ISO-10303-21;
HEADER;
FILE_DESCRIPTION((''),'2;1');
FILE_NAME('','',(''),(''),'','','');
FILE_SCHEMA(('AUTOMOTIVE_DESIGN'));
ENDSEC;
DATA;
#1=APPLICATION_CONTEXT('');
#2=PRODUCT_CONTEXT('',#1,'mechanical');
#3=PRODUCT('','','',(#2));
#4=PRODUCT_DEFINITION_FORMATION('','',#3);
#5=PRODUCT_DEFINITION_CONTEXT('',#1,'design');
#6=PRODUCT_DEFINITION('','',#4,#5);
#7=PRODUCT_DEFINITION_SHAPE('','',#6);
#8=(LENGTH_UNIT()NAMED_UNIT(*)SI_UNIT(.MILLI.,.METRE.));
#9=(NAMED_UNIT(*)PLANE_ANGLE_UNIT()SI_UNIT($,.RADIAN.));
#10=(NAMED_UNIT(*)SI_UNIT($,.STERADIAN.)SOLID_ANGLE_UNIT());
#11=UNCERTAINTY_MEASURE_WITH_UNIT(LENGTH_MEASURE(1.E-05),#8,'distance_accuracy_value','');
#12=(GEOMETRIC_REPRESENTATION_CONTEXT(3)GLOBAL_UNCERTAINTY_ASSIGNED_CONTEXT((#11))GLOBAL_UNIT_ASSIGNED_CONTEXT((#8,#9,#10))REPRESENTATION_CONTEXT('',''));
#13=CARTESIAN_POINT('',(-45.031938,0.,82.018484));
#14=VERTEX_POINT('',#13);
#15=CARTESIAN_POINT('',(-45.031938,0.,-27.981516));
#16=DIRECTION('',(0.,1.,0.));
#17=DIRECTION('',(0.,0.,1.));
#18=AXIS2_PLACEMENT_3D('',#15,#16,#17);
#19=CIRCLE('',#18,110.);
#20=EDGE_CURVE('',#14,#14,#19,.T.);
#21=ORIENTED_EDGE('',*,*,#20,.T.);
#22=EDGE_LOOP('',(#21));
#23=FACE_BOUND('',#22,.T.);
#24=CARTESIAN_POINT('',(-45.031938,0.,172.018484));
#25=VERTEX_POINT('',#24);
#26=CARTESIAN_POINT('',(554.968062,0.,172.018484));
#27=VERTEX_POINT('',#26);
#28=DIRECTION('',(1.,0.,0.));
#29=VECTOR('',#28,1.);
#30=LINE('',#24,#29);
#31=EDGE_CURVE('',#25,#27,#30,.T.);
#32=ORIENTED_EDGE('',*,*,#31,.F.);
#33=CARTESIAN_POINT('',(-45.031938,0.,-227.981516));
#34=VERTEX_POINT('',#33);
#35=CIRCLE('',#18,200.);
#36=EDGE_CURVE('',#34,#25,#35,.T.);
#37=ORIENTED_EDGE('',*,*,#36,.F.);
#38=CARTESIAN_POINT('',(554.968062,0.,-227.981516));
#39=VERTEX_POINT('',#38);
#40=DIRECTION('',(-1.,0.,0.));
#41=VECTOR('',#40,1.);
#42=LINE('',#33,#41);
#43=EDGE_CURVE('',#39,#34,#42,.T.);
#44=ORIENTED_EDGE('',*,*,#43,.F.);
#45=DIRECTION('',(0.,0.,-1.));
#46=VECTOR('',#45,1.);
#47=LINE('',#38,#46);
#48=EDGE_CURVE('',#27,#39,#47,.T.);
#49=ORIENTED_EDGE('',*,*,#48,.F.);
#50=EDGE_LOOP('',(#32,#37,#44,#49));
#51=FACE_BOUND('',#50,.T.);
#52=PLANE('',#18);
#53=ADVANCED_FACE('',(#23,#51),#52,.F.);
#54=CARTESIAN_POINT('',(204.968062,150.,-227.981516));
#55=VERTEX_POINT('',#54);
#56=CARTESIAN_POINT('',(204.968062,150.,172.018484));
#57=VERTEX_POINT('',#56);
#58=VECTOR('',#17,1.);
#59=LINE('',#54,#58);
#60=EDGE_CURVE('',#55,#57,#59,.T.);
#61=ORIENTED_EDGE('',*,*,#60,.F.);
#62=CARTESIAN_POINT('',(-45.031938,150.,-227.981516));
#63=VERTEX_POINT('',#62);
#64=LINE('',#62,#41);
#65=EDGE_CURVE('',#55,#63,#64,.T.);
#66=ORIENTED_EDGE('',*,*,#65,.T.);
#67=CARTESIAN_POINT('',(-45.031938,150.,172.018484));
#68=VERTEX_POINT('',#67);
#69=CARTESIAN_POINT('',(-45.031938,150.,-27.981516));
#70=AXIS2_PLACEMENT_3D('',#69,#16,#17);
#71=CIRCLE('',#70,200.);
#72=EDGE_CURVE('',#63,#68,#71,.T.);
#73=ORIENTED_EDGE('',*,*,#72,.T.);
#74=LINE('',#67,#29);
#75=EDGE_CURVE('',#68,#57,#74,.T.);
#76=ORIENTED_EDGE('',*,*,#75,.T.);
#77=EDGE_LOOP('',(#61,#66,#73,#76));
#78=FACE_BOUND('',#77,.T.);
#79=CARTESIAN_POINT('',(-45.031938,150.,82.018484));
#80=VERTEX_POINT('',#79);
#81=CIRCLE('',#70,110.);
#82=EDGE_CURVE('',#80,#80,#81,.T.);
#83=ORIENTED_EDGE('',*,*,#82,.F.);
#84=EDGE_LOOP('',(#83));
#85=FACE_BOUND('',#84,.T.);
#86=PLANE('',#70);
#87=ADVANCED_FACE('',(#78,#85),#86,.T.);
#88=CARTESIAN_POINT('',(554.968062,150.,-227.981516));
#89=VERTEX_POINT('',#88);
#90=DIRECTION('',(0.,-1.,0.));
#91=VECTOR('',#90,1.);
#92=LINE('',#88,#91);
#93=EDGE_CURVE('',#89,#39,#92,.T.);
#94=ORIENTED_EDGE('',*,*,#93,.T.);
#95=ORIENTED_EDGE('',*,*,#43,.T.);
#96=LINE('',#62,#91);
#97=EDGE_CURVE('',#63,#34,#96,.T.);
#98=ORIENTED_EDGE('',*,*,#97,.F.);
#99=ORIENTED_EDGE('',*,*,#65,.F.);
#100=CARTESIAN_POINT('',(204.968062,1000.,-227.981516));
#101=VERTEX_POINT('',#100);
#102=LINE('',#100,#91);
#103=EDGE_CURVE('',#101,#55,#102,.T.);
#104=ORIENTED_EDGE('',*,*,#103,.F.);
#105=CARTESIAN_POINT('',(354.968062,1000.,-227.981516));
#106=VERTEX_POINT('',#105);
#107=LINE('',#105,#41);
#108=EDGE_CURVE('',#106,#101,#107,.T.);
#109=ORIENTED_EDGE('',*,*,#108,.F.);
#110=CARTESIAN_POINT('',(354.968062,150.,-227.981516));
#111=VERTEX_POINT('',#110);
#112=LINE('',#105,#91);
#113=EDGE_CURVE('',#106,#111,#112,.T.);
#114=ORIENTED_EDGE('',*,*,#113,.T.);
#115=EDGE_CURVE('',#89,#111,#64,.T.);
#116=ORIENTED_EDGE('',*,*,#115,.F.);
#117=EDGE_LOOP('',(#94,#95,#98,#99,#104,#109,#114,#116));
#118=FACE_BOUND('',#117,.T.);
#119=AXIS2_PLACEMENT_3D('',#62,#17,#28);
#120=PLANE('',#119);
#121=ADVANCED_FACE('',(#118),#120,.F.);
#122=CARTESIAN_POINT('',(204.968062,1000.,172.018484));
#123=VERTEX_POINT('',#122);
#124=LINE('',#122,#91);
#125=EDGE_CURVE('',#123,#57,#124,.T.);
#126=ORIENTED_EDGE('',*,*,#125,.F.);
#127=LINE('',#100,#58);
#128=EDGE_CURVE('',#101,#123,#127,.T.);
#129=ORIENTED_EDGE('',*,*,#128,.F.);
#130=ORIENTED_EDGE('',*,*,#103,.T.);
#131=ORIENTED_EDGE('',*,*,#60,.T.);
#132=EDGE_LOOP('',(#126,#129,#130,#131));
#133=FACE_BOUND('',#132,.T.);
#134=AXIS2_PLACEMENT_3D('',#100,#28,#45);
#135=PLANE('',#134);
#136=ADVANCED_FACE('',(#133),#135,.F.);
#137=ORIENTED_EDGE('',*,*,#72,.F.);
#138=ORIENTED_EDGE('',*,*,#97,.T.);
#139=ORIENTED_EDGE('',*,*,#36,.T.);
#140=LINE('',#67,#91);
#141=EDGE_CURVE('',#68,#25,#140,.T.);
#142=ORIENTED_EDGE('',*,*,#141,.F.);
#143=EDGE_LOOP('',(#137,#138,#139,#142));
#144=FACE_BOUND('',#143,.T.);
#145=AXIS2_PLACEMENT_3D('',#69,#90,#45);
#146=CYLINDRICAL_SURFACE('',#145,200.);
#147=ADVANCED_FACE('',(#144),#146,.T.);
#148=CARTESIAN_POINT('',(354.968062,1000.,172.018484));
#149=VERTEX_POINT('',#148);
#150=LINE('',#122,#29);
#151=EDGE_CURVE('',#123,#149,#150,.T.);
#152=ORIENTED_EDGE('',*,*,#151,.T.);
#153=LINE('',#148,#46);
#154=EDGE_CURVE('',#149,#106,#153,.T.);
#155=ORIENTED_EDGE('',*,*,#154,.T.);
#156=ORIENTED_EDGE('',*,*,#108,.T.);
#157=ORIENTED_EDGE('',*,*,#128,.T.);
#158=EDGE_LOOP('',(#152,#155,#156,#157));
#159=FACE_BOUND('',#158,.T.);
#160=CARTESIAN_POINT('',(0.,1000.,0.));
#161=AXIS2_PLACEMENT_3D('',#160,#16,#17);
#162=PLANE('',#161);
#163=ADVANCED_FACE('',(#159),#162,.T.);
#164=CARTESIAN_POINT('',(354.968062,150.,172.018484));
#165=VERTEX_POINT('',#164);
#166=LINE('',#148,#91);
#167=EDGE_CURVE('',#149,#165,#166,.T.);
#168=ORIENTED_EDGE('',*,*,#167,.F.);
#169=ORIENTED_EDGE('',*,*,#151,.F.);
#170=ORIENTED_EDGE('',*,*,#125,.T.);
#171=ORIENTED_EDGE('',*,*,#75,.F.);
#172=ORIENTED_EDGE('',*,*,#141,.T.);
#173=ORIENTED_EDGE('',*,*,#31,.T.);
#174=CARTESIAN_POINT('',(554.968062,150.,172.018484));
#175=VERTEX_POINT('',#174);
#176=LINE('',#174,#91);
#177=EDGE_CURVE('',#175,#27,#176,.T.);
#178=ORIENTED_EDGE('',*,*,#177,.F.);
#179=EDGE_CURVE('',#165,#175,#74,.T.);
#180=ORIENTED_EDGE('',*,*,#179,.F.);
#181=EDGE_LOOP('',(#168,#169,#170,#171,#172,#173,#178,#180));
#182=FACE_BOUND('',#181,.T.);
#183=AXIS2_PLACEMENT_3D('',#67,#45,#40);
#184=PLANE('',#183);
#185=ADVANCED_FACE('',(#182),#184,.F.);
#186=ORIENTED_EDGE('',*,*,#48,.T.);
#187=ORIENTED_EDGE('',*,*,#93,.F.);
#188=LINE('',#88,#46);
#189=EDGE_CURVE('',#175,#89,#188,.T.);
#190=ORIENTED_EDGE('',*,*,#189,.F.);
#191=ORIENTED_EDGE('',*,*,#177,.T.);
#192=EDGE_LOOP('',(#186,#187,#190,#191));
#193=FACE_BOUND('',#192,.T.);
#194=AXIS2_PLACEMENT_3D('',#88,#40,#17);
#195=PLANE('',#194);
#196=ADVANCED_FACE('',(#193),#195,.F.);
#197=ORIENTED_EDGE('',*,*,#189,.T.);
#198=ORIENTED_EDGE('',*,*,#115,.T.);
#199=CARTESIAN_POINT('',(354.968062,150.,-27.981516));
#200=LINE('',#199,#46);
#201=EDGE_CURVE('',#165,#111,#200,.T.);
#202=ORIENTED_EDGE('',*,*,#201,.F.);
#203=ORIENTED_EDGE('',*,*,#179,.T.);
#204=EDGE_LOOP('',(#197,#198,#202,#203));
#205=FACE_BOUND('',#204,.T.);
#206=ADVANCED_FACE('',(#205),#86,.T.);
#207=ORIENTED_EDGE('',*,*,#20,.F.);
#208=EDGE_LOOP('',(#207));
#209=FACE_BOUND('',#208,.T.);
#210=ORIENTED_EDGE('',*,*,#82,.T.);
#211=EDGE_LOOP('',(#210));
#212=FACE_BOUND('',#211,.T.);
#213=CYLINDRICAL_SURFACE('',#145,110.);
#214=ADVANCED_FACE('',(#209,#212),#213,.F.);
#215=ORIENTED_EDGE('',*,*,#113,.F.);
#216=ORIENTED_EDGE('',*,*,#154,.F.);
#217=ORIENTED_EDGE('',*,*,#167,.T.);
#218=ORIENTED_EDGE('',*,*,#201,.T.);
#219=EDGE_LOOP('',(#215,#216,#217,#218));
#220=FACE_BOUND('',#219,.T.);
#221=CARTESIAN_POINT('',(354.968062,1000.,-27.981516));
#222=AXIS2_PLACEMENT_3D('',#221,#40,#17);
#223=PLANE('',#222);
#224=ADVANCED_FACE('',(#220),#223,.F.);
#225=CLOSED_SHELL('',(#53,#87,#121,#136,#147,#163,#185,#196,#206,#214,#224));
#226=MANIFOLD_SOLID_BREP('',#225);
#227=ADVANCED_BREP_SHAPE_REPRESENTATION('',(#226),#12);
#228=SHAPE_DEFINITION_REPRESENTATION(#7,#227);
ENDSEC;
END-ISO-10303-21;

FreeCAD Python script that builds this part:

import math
import FreeCAD as App
import Part
import Sketcher
from FreeCAD import Vector
Q = App.Units.Quantity


def add_polygon(sketch, points):
    """Adds a closed chain of lines whose ends are joined by coincident constraints."""
    first, n = sketch.GeometryCount, len(points)
    for a, b in zip(points, points[1:] + points[:1]):
        sketch.addGeometry(Part.LineSegment(App.Vector(*a, 0), App.Vector(*b, 0)), False)
    for i in range(n):
        sketch.addConstraint(Sketcher.Constraint("Coincident", first + i, 2, first + (i + 1) % n, 1))

doc = App.newDocument("Part")
body = doc.addObject("PartDesign::Body", "Body")

# Sketch on XZ plane
sketch1 = doc.addObject("Sketcher::SketchObject", "Sketch")
body.addObject(sketch1)
sketch1.AttachmentSupport = (doc.XZ_Plane, [""])
sketch1.MapMode = "FlatFace"
sketch1.addGeometry([
    Part.LineSegment(Vector(555, -228, 0), Vector(-45, -228, 0)),  # 0
    Part.ArcOfCircle(Part.Circle(Vector(-45, -28, 0), Vector(0, 0, 1), 200), math.radians(90), math.radians(270)),  # 1
    Part.LineSegment(Vector(-45, 172, 0), Vector(555, 172, 0)),  # 2
    Part.LineSegment(Vector(555, 172, 0), Vector(555, -228, 0)),  # 3
    Part.Circle(Vector(-45, -28, 0), Vector(0, 0, 1), 110),  # 4
], False)
sketch1.addConstraint([
    Sketcher.Constraint("Tangent", 0, 2, 1, 2),
    Sketcher.Constraint("Tangent", 1, 1, 2, 1),
    Sketcher.Constraint("Coincident", 2, 2, 3, 1),
    Sketcher.Constraint("Coincident", 3, 2, 0, 1),
    Sketcher.Constraint("Horizontal", 0),
    Sketcher.Constraint("Horizontal", 2),
    Sketcher.Constraint("Vertical", 3),
    Sketcher.Constraint("Coincident", 4, 3, 1, 3),
    Sketcher.Constraint("Diameter", 4, Q("220 mm")),
    Sketcher.Constraint("Radius", 1, Q("200 mm")),
    Sketcher.Constraint("DistanceX", 0, 2, 0, 1, Q("600 mm")),
    Sketcher.Constraint("DistanceX", 1, 3, -1, 1, Q("45.031938 mm")),
    Sketcher.Constraint("DistanceY", 1, 3, -1, 1, Q("27.981516 mm")),
])
pad1 = doc.addObject("PartDesign::Pad", "Pad")
body.addObject(pad1)
pad1.Profile = sketch1
pad1.Length = 150
pad1.Reversed = True

# Sketch on XZ plane
sketch2 = doc.addObject("Sketcher::SketchObject", "Sketch001")
body.addObject(sketch2)
sketch2.AttachmentSupport = (doc.XZ_Plane, [""])
sketch2.MapMode = "FlatFace"
sketch2.AttachmentOffset = App.Placement(Vector(0, 0, -150), App.Rotation())
add_polygon(sketch2, [(355, -228), (205, -228), (205, 172), (355, 172)])  # lines 0-3
sketch2.addConstraint([
    Sketcher.Constraint("Horizontal", 0),
    Sketcher.Constraint("Vertical", 1),
    Sketcher.Constraint("Horizontal", 2),
    Sketcher.Constraint("Vertical", 3),
    Sketcher.Constraint("DistanceX", 0, 2, 0, 1, Q("150 mm")),
    Sketcher.Constraint("DistanceY", 1, 1, 1, 2, Q("400 mm")),
    Sketcher.Constraint("DistanceX", -1, 1, 0, 2, Q("204.968062 mm")),
    Sketcher.Constraint("DistanceY", 0, 2, -1, 1, Q("227.981516 mm")),
])
pad2 = doc.addObject("PartDesign::Pad", "Pad001")
body.addObject(pad2)
pad2.Profile = sketch2
pad2.Length = 850
pad2.Reversed = True

doc.recompute()
